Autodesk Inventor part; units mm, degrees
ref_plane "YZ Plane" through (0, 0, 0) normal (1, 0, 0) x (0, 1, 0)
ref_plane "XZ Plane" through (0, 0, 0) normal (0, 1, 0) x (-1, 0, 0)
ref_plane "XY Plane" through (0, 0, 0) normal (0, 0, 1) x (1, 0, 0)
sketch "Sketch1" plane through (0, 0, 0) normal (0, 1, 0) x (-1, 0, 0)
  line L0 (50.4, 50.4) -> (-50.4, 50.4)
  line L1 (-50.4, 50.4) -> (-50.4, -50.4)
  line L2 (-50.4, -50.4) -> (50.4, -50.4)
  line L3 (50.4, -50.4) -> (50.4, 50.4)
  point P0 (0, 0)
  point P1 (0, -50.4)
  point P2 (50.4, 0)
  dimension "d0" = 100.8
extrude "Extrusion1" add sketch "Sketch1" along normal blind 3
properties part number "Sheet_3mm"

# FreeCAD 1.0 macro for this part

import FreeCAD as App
import Part
import Sketcher
Q = App.Units.Quantity

doc = App.newDocument("Part")
params = doc.addObject("Spreadsheet::Sheet", "Params")
for row, (alias, value) in enumerate([
    ("sketch1_width", "100.8 mm"),
    ("pad1_length", "3 mm"),
], start=1):
    params.set(f"A{row}", alias)
    params.set(f"B{row}", "=" + value)
    params.setAlias(f"B{row}", alias)

body = doc.addObject("PartDesign::Body", "Body")

# Sketch on XZ plane
sketch1 = body.newObject("Sketcher::SketchObject", "Sketch")
sketch1.AttachmentSupport = (doc.getObject("XZ_Plane"), [""])
sketch1.MapMode = "FlatFace"
sketch1.addGeometry(Part.LineSegment(App.Vector(-50, -50, 0), App.Vector(-50, 50, 0)), False)
sketch1.addGeometry(Part.LineSegment(App.Vector(-50, 50, 0), App.Vector(50, 50, 0)), False)
sketch1.addGeometry(Part.LineSegment(App.Vector(50, 50, 0), App.Vector(50, -50, 0)), False)
sketch1.addGeometry(Part.LineSegment(App.Vector(50, -50, 0), App.Vector(-50, -50, 0)), False)
sketch1.addConstraint(Sketcher.Constraint("Coincident", 0, 2, 1, 1))
sketch1.addConstraint(Sketcher.Constraint("Coincident", 1, 2, 2, 1))
sketch1.addConstraint(Sketcher.Constraint("Coincident", 2, 2, 3, 1))
sketch1.addConstraint(Sketcher.Constraint("Coincident", 3, 2, 0, 1))
sketch1.addConstraint(Sketcher.Constraint("Vertical", 0))
sketch1.addConstraint(Sketcher.Constraint("Horizontal", 1))
sketch1.addConstraint(Sketcher.Constraint("Vertical", 2))
sketch1.addConstraint(Sketcher.Constraint("Horizontal", 3))
sketch1.addConstraint(Sketcher.Constraint("Symmetric", 0, 2, 2, 2, -1, 1))
sketch1.addConstraint(Sketcher.Constraint("Equal", 3, 0))
sketch1.addConstraint(Sketcher.Constraint("DistanceX", 1, 1, 1, 2, Q("100.8 mm")))
sketch1.setExpression("Constraints[10]", "Params.sketch1_width")
pad1 = body.newObject("PartDesign::Pad", "Pad")
pad1.Profile = sketch1
pad1.setExpression("Length", "Params.pad1_length")
pad1.Reversed = True

doc.recompute()
